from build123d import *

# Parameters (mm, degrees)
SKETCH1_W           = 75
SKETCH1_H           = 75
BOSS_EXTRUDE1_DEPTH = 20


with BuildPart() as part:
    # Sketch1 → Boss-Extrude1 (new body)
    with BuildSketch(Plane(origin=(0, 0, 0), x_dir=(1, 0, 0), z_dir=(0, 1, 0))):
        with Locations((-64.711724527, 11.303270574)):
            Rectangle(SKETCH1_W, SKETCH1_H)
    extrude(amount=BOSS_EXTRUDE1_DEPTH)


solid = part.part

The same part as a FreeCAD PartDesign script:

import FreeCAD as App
import Part
import Sketcher
Q = App.Units.Quantity

doc = App.newDocument("Part")
body = doc.addObject("PartDesign::Body", "Body")

# Sketch on XZ plane
sketch1 = doc.addObject("Sketcher::SketchObject", "Sketch")
body.addObject(sketch1)
sketch1.AttachmentSupport = (doc.XZ_Plane, [""])
sketch1.MapMode = "FlatFace"
sketch1.addGeometry([
    Part.LineSegment(App.Vector(-102, -49, 0), App.Vector(-102, 26, 0)),
    Part.LineSegment(App.Vector(-102, 26, 0), App.Vector(-27, 26, 0)),
    Part.LineSegment(App.Vector(-27, 26, 0), App.Vector(-27, -49, 0)),
    Part.LineSegment(App.Vector(-27, -49, 0), App.Vector(-102, -49, 0)),
], False)
sketch1.addConstraint([
    Sketcher.Constraint("Coincident", 0, 2, 1, 1),
    Sketcher.Constraint("Coincident", 1, 2, 2, 1),
    Sketcher.Constraint("Coincident", 2, 2, 3, 1),
    Sketcher.Constraint("Coincident", 3, 2, 0, 1),
    Sketcher.Constraint("Vertical", 0),
    Sketcher.Constraint("Horizontal", 1),
    Sketcher.Constraint("Vertical", 2),
    Sketcher.Constraint("Horizontal", 3),
    Sketcher.Constraint("Equal", 3, 0),
    Sketcher.Constraint("DistanceX", 1, 1, 1, 2, Q("75 mm")),
    Sketcher.Constraint("DistanceY", -1, 1, 0, 2, Q("26.196729 mm")),
    Sketcher.Constraint("DistanceX", 0, 2, -1, 1, Q("102.211725 mm")),
])
pad1 = doc.addObject("PartDesign::Pad", "Pad")
body.addObject(pad1)
pad1.Profile = sketch1
pad1.Length = 20
pad1.Reversed = True

doc.recompute()
